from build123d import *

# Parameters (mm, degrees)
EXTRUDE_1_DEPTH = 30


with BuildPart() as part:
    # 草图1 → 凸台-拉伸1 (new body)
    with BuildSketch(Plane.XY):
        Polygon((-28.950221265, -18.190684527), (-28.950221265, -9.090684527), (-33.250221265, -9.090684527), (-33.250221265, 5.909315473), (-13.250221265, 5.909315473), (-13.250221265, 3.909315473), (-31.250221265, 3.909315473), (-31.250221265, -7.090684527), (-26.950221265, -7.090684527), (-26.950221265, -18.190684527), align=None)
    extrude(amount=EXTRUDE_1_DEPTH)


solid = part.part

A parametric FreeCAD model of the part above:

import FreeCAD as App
import Part
import Sketcher
from FreeCAD import Vector

doc = App.newDocument("Part")
body = doc.addObject("PartDesign::Body", "Body")

sketch1 = body.newObject("Sketcher::SketchObject", "Sketch")
sketch1.AttachmentSupport = (doc.getObject("XY_Plane"), [""])
sketch1.MapMode = "FlatFace"
sketch1.addGeometry([
    Part.LineSegment(Vector(-28.950221, -9.090685, 0), Vector(-28.950221, -18.190685, 0)),
    Part.LineSegment(Vector(-28.950221, -18.190685, 0), Vector(-26.950221, -18.190685, 0)),
    Part.LineSegment(Vector(-26.950221, -18.190685, 0), Vector(-26.950221, -7.090685, 0)),
    Part.LineSegment(Vector(-26.950221, -7.090685, 0), Vector(-31.250221, -7.090685, 0)),
    Part.LineSegment(Vector(-31.250221, -7.090685, 0), Vector(-31.250221, 3.909315, 0)),
    Part.LineSegment(Vector(-31.250221, 3.909315, 0), Vector(-13.250221, 3.909315, 0)),
    Part.LineSegment(Vector(-13.250221, 3.909315, 0), Vector(-13.250221, 5.909315, 0)),
    Part.LineSegment(Vector(-13.250221, 5.909315, 0), Vector(-33.250221, 5.909315, 0)),
    Part.LineSegment(Vector(-33.250221, 5.909315, 0), Vector(-33.250221, -9.090685, 0)),
    Part.LineSegment(Vector(-33.250221, -9.090685, 0), Vector(-28.950221, -9.090685, 0)),
], False)
sketch1.addConstraint([
    Sketcher.Constraint("Coincident", 0, 2, 1, 1),
    Sketcher.Constraint("Coincident", 1, 2, 2, 1),
    Sketcher.Constraint("Coincident", 2, 2, 3, 1),
    Sketcher.Constraint("Coincident", 3, 2, 4, 1),
    Sketcher.Constraint("Coincident", 4, 2, 5, 1),
    Sketcher.Constraint("Coincident", 5, 2, 6, 1),
    Sketcher.Constraint("Coincident", 6, 2, 7, 1),
    Sketcher.Constraint("Coincident", 7, 2, 8, 1),
    Sketcher.Constraint("Coincident", 8, 2, 9, 1),
    Sketcher.Constraint("Coincident", 9, 2, 0, 1),
    Sketcher.Constraint("Vertical", 0),
    Sketcher.Constraint("Horizontal", 1),
    Sketcher.Constraint("Vertical", 2),
    Sketcher.Constraint("Horizontal", 3),
    Sketcher.Constraint("Vertical", 4),
    Sketcher.Constraint("Horizontal", 5),
    Sketcher.Constraint("Vertical", 6),
    Sketcher.Constraint("Horizontal", 7),
    Sketcher.Constraint("Vertical", 8),
    Sketcher.Constraint("Horizontal", 9),
    Sketcher.Constraint("Equal", 3, 9),
    Sketcher.Constraint("Equal", 1, 6),
    Sketcher.Constraint("DistanceX", 1, 1, 1, 2, 2.0),
    Sketcher.Constraint("DistanceX", 5, 1, 5, 2, 18.0),
    Sketcher.Constraint("DistanceY", 4, 1, 4, 2, 11.0),
    Sketcher.Constraint("DistanceY", 8, 2, 8, 1, 15.0),
    Sketcher.Constraint("DistanceX", 3, 2, 3, 1, 4.3),
    Sketcher.Constraint("DistanceY", 0, 2, 0, 1, 9.1),
    Sketcher.Constraint("DistanceX", 0, 2, -1, 1, 28.950221),
    Sketcher.Constraint("DistanceY", 0, 2, -1, 1, 18.190685),
])
pad1 = body.newObject("PartDesign::Pad", "Pad")
pad1.Profile = sketch1
pad1.Length = 30

doc.recompute()
